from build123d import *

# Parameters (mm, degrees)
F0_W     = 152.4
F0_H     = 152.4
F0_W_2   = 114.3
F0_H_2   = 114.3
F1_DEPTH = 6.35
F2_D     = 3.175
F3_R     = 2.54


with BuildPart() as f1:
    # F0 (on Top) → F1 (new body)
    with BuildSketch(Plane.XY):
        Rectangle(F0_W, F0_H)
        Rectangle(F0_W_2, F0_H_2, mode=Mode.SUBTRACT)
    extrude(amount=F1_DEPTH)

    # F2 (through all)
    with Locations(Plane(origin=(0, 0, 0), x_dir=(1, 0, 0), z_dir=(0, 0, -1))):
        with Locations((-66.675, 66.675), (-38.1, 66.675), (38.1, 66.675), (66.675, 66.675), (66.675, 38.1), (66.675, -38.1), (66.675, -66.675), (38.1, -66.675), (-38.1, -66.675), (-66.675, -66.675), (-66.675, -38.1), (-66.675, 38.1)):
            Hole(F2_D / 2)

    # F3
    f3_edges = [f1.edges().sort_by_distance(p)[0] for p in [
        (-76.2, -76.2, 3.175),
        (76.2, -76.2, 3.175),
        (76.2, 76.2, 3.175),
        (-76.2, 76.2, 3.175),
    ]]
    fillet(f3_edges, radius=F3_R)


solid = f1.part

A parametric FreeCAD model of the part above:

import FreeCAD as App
import Part
import Sketcher
from FreeCAD import Vector
Q = App.Units.Quantity


def edges_at(feature, points):
    """Names of the edges that pass closest to the given points."""
    edges = feature.Shape.Edges
    near = lambda p: min(range(len(edges)), key=lambda i: edges[i].distToShape(Part.Vertex(*p))[0])
    return sorted({f"Edge{near(p) + 1}" for p in points})


def add_polygon(sketch, points):
    """Adds a closed chain of lines whose ends are joined by coincident constraints."""
    first, n = sketch.GeometryCount, len(points)
    for a, b in zip(points, points[1:] + points[:1]):
        sketch.addGeometry(Part.LineSegment(App.Vector(*a, 0), App.Vector(*b, 0)), False)
    for i in range(n):
        sketch.addConstraint(Sketcher.Constraint("Coincident", first + i, 2, first + (i + 1) % n, 1))

doc = App.newDocument("Part")
body = doc.addObject("PartDesign::Body", "Body")

sketch1 = body.newObject("Sketcher::SketchObject", "Sketch")
sketch1.AttachmentSupport = (doc.getObject("XY_Plane"), [""])
sketch1.MapMode = "FlatFace"
add_polygon(sketch1, [(-76.2, 76.2), (-76.2, -76.2), (76.2, -76.2), (76.2, 76.2)])
add_polygon(sketch1, [(57.15, -57.15), (-57.15, -57.15), (-57.15, 57.15), (57.15, 57.15)])
sketch1.addConstraint(Sketcher.Constraint("Vertical", 0))
sketch1.addConstraint(Sketcher.Constraint("Horizontal", 1))
sketch1.addConstraint(Sketcher.Constraint("Vertical", 2))
sketch1.addConstraint(Sketcher.Constraint("Horizontal", 3))
sketch1.addConstraint(Sketcher.Constraint("Horizontal", 4))
sketch1.addConstraint(Sketcher.Constraint("Vertical", 5))
sketch1.addConstraint(Sketcher.Constraint("Horizontal", 6))
sketch1.addConstraint(Sketcher.Constraint("Vertical", 7))
sketch1.addConstraint(Sketcher.Constraint("Symmetric", 0, 2, 2, 2, -1, 1))
sketch1.addConstraint(Sketcher.Constraint("Symmetric", 4, 2, 6, 2, -1, 1))
sketch1.addConstraint(Sketcher.Constraint("Equal", 3, 0))
sketch1.addConstraint(Sketcher.Constraint("Equal", 6, 5))
sketch1.addConstraint(Sketcher.Constraint("DistanceX", 1, 1, 1, 2, Q("6 in")))
sketch1.addConstraint(Sketcher.Constraint("DistanceX", 4, 2, 4, 1, Q("4.5 in")))
pad1 = body.newObject("PartDesign::Pad", "Pad")
pad1.Profile = sketch1
pad1.Length = Q("0.25 in")

sketch2 = body.newObject("Sketcher::SketchObject", "Sketch001")
sketch2.AttachmentSupport = (doc.getObject("XY_Plane"), [""])
sketch2.MapMode = "FlatFace"
sketch2.addGeometry(Part.Circle(Vector(-66.675, -66.675, 0), Vector(0, 0, 1), 1.5875), False)
sketch2.addGeometry(Part.Circle(Vector(-38.1, -66.675, 0), Vector(0, 0, 1), 1.5875), False)
sketch2.addGeometry(Part.Circle(Vector(38.1, -66.675, 0), Vector(0, 0, 1), 1.5875), False)
sketch2.addGeometry(Part.Circle(Vector(66.675, -66.675, 0), Vector(0, 0, 1), 1.5875), False)
sketch2.addGeometry(Part.Circle(Vector(66.675, -38.1, 0), Vector(0, 0, 1), 1.5875), False)
sketch2.addGeometry(Part.Circle(Vector(66.675, 38.1, 0), Vector(0, 0, 1), 1.5875), False)
sketch2.addGeometry(Part.Circle(Vector(66.675, 66.675, 0), Vector(0, 0, 1), 1.5875), False)
sketch2.addGeometry(Part.Circle(Vector(38.1, 66.675, 0), Vector(0, 0, 1), 1.5875), False)
sketch2.addGeometry(Part.Circle(Vector(-38.1, 66.675, 0), Vector(0, 0, 1), 1.5875), False)
sketch2.addGeometry(Part.Circle(Vector(-66.675, 66.675, 0), Vector(0, 0, 1), 1.5875), False)
sketch2.addGeometry(Part.Circle(Vector(-66.675, 38.1, 0), Vector(0, 0, 1), 1.5875), False)
sketch2.addGeometry(Part.Circle(Vector(-66.675, -38.1, 0), Vector(0, 0, 1), 1.5875), False)
sketch2.addConstraint(Sketcher.Constraint("Equal", 0, 1))
sketch2.addConstraint(Sketcher.Constraint("Equal", 1, 2))
sketch2.addConstraint(Sketcher.Constraint("Equal", 2, 3))
sketch2.addConstraint(Sketcher.Constraint("Equal", 3, 4))
sketch2.addConstraint(Sketcher.Constraint("Equal", 4, 5))
sketch2.addConstraint(Sketcher.Constraint("Equal", 5, 6))
sketch2.addConstraint(Sketcher.Constraint("Equal", 6, 7))
sketch2.addConstraint(Sketcher.Constraint("Equal", 7, 8))
sketch2.addConstraint(Sketcher.Constraint("Equal", 8, 9))
sketch2.addConstraint(Sketcher.Constraint("Equal", 9, 10))
sketch2.addConstraint(Sketcher.Constraint("Equal", 10, 11))
sketch2.addConstraint(Sketcher.Constraint("Symmetric", 0, 3, 6, 3, -1, 1))
sketch2.addConstraint(Sketcher.Constraint("Symmetric", 1, 3, 7, 3, -1, 1))
sketch2.addConstraint(Sketcher.Constraint("Symmetric", 2, 3, 8, 3, -1, 1))
sketch2.addConstraint(Sketcher.Constraint("Symmetric", 3, 3, 9, 3, -1, 1))
sketch2.addConstraint(Sketcher.Constraint("Symmetric", 4, 3, 10, 3, -1, 1))
sketch2.addConstraint(Sketcher.Constraint("Symmetric", 5, 3, 11, 3, -1, 1))
sketch2.addConstraint(Sketcher.Constraint("Symmetric", 1, 3, 2, 3, -2))
sketch2.addConstraint(Sketcher.Constraint("Symmetric", 0, 3, 3, 3, -2))
sketch2.addConstraint(Sketcher.Constraint("Symmetric", 5, 3, 10, 3, -2))
sketch2.addConstraint(Sketcher.Constraint("Horizontal", 0, 3, 1, 3))
sketch2.addConstraint(Sketcher.Constraint("Vertical", 3, 3, 4, 3))
sketch2.addConstraint(Sketcher.Constraint("Diameter", 0, Q("0.125 in")))
sketch2.addConstraint(Sketcher.Constraint("DistanceX", 1, 3, 2, 3, Q("3 in")))
sketch2.addConstraint(Sketcher.Constraint("DistanceY", 4, 3, 5, 3, Q("3 in")))
sketch2.addConstraint(Sketcher.Constraint("DistanceX", 0, 3, 3, 3, Q("5.25 in")))
sketch2.addConstraint(Sketcher.Constraint("DistanceY", 3, 3, 6, 3, Q("5.25 in")))
doc.recompute()
hole = body.newObject("PartDesign::Hole", "Hole")
hole.Profile = sketch2
hole.ThreadType = "None"
hole.Diameter = Q("0.125 in")
hole.DepthType = "ThroughAll"
hole.Reversed = True
doc.recompute()

fillet = body.newObject("PartDesign::Fillet", "Fillet")
fillet.Base = (hole, edges_at(hole, [
    (-76.2, -76.2, 3.175),
    (76.2, -76.2, 3.175),
    (76.2, 76.2, 3.175),
    (-76.2, 76.2, 3.175),
]))
fillet.Radius = Q("0.1 in")

doc.recompute()
